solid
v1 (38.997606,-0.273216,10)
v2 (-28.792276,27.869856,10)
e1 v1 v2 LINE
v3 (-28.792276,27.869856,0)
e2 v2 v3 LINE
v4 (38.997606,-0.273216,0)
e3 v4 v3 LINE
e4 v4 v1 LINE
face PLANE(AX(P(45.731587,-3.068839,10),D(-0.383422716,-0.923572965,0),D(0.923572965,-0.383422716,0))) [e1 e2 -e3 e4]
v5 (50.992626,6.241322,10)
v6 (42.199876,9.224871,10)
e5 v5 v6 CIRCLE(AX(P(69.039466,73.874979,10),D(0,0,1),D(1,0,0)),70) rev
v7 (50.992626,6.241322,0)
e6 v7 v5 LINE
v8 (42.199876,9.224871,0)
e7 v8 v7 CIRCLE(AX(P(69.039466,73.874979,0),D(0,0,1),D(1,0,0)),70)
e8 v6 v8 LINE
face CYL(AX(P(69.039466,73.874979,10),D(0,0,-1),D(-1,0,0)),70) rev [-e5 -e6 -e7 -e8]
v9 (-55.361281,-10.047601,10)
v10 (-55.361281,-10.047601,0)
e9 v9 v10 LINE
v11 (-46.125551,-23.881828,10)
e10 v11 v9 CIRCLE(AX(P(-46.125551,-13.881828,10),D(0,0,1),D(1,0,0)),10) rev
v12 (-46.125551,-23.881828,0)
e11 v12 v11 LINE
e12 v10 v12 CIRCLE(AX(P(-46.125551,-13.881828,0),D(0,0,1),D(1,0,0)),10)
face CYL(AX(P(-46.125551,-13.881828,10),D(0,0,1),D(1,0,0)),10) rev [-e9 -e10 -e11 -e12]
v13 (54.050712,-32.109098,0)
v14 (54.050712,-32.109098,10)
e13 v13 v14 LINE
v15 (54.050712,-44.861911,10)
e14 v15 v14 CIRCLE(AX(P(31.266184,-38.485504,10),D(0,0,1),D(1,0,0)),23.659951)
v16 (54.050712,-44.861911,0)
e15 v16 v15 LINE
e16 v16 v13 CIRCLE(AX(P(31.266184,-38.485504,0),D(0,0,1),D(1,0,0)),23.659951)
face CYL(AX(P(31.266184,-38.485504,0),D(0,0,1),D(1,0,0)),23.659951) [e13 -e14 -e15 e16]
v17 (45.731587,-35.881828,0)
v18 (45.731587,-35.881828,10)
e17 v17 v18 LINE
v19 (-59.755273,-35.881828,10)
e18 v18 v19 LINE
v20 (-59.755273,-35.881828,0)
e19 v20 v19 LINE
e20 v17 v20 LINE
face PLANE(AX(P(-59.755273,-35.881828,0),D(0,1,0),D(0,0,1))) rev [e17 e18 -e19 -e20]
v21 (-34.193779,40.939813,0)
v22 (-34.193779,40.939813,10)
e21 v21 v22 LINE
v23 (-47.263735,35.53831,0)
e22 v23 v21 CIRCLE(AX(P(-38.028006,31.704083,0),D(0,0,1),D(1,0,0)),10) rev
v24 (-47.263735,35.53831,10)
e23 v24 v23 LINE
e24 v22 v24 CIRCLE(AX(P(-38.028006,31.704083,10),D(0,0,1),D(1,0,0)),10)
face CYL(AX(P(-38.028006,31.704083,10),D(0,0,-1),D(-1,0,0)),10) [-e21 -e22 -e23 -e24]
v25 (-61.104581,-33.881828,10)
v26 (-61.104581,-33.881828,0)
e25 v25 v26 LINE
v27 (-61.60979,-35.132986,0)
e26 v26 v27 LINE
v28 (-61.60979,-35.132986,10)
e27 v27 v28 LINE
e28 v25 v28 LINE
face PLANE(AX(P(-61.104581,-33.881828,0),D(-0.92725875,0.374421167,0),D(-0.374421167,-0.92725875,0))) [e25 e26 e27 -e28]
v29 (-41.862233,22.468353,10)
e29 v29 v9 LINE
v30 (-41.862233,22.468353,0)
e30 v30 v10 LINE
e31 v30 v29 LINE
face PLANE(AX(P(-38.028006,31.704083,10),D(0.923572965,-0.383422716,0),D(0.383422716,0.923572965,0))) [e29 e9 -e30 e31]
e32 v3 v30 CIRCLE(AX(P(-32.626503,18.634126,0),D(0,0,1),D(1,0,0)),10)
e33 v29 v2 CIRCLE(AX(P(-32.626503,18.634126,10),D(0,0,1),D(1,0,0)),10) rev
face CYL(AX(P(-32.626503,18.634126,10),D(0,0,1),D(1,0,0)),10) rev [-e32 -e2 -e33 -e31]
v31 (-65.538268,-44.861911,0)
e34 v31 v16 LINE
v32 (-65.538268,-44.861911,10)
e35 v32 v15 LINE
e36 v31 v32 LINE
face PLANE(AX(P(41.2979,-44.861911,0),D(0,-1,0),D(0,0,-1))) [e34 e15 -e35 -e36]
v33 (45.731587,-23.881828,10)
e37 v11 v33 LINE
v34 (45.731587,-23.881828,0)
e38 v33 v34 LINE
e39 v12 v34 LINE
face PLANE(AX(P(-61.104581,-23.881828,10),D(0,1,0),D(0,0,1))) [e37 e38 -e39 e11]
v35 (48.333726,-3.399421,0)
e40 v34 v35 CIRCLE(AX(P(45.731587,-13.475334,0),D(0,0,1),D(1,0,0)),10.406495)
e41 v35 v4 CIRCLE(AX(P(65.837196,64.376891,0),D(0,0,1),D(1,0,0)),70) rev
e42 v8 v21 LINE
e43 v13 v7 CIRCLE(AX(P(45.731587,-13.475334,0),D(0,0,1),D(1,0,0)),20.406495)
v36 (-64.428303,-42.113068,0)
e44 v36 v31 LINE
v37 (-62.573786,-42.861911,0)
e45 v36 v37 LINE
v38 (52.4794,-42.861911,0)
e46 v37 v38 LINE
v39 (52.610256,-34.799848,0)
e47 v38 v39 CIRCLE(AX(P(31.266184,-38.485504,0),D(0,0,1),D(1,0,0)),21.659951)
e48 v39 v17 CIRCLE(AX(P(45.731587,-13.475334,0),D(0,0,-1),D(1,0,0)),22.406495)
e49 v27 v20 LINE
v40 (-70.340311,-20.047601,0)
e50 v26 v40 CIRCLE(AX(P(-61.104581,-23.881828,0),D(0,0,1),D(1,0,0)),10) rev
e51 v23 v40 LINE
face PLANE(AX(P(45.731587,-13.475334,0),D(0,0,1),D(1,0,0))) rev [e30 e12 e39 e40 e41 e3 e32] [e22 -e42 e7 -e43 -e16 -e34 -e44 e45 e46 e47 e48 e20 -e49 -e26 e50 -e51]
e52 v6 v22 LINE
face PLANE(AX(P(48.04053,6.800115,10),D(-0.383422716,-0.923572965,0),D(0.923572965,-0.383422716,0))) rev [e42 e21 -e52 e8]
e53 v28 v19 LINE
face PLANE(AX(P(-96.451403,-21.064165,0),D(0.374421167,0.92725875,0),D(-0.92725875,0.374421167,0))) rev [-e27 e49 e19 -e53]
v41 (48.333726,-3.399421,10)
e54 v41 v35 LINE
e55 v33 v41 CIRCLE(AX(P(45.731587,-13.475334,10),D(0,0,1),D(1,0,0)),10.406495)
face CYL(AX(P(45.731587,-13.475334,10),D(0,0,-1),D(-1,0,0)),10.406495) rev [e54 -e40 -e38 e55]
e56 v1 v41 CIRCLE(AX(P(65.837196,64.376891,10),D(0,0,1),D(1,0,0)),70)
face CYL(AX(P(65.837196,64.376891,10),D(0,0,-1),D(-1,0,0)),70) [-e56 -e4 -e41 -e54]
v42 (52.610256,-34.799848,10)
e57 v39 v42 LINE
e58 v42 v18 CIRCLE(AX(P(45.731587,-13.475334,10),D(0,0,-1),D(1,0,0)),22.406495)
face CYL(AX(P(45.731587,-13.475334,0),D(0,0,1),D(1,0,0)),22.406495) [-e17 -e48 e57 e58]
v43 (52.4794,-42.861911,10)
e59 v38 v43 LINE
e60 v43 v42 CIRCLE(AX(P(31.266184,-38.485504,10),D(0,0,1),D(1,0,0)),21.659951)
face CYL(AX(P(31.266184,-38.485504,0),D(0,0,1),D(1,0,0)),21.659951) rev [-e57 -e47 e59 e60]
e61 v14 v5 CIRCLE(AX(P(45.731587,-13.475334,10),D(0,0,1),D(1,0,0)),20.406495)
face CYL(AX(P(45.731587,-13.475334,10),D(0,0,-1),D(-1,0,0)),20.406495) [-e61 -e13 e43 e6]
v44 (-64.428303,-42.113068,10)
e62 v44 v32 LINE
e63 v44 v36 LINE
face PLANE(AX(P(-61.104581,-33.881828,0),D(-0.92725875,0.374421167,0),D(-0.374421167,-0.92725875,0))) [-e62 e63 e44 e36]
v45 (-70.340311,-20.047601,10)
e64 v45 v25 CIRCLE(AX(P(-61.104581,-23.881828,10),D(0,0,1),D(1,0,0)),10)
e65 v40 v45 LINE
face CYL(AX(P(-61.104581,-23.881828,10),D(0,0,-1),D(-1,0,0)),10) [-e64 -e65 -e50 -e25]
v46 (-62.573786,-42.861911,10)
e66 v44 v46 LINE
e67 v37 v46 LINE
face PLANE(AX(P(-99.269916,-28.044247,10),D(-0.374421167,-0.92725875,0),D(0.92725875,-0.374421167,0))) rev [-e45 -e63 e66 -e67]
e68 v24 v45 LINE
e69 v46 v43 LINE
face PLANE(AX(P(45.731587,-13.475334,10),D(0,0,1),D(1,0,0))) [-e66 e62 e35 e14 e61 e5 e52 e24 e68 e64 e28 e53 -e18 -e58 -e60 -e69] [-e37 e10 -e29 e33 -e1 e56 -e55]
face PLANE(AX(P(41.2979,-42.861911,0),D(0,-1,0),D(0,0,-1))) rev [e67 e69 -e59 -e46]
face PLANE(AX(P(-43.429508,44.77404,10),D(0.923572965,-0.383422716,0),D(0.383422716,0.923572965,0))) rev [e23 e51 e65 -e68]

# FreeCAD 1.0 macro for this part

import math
import FreeCAD as App
import Part
import Sketcher
from FreeCAD import Vector
Q = App.Units.Quantity


def edges_at(feature, points):
    """Names of the edges that pass closest to the given points."""
    edges = feature.Shape.Edges
    near = lambda p: min(range(len(edges)), key=lambda i: edges[i].distToShape(Part.Vertex(*p))[0])
    return sorted({f"Edge{near(p) + 1}" for p in points})

doc = App.newDocument("Part")
body = doc.addObject("PartDesign::Body", "Body")

# Sketch on XY plane
sketch1 = body.newObject("Sketcher::SketchObject", "Sketch")
sketch1.AttachmentSupport = (doc.getObject("XY_Plane"), [""])
sketch1.MapMode = "FlatFace"
sketch1.addGeometry(Part.LineSegment(Vector(-76, -34, 0), Vector(46, -34, 0)), False)
sketch1.addGeometry(Part.ArcOfCircle(Part.Circle(Vector(46, -13, 0), Vector(0, 0, 1), 20), math.radians(-90), math.radians(84)), False)
sketch1.addGeometry(Part.LineSegment(Vector(48, 7, 0), Vector(-43, 45, 0)), False)
sketch1.addGeometry(Part.LineSegment(Vector(-43, 45, 0), Vector(-76, -34, 0)), False)
sketch1.addGeometry(Part.LineSegment(Vector(46, -24, 0), Vector(-61, -24, 0)), False)
sketch1.addGeometry(Part.LineSegment(Vector(-61, -24, 0), Vector(-38, 32, 0)), False)
sketch1.addGeometry(Part.LineSegment(Vector(-38, 32, 0), Vector(46, -3, 0)), False)
sketch1.addGeometry(Part.ArcOfCircle(Part.Circle(Vector(46, -13, 0), Vector(0, 0, 1), 10), math.radians(-90), math.radians(90)), False)
sketch1.addConstraint(Sketcher.Constraint("Tangent", 0, 2, 1, 1))
sketch1.addConstraint(Sketcher.Constraint("Coincident", 1, 2, 2, 1))
sketch1.addConstraint(Sketcher.Constraint("Coincident", 2, 2, 3, 1))
sketch1.addConstraint(Sketcher.Constraint("Coincident", 3, 2, 0, 1))
sketch1.addConstraint(Sketcher.Constraint("Coincident", 4, 2, 5, 1))
sketch1.addConstraint(Sketcher.Constraint("Coincident", 5, 2, 6, 1))
sketch1.addConstraint(Sketcher.Constraint("Coincident", 6, 2, 7, 2))
sketch1.addConstraint(Sketcher.Constraint("Tangent", 7, 1, 4, 1))
sketch1.addConstraint(Sketcher.Constraint("Horizontal", 0))
sketch1.addConstraint(Sketcher.Constraint("Horizontal", 4))
sketch1.addConstraint(Sketcher.Constraint("Coincident", 7, 3, 1, 3))
sketch1.addConstraint(Sketcher.Constraint("Perpendicular", 2, 3))
sketch1.addConstraint(Sketcher.Constraint("Parallel", 3, 5))
sketch1.addConstraint(Sketcher.Constraint("Perpendicular", 5, 6))
sketch1.addConstraint(Sketcher.Constraint("Vertical", 0, 2, 6, 2))
sketch1.addConstraint(Sketcher.Constraint("DistanceY", 3, 2, 4, 2, Q("10 mm")))
sketch1.addConstraint(Sketcher.Constraint("Radius", 1, Q("20.406495 mm")))
sketch1.addConstraint(Sketcher.Constraint("Distance", 2, Q("99.039319 mm")))
sketch1.addConstraint(Sketcher.Constraint("Distance", 3, Q("85.164758 mm")))
sketch1.addConstraint(Sketcher.Constraint("Distance", 5, Q("60.185728 mm")))
sketch1.addConstraint(Sketcher.Constraint("DistanceX", 0, 1, 0, 2, Q("121.815198 mm")))
sketch1.addConstraint(Sketcher.Constraint("DistanceY", 0, 2, -1, 1, Q("33.881828 mm")))
sketch1.addConstraint(Sketcher.Constraint("DistanceX", -1, 1, 1, 2, Q("48.04053 mm")))
pad1 = body.newObject("PartDesign::Pad", "Pad")
pad1.Profile = sketch1
pad1.Length = 10
doc.recompute()

fillet = body.newObject("PartDesign::Fillet", "Fillet")
fillet.Base = (pad1, edges_at(pad1, [(-76.084, -33.882, 5)]))
fillet.Radius = 10
doc.recompute()

fillet2 = body.newObject("PartDesign::Fillet", "Fillet001")
fillet2.Base = (fillet, edges_at(fillet, [(-61.105, -23.882, 5)]))
fillet2.Radius = 10
doc.recompute()

fillet3 = body.newObject("PartDesign::Fillet", "Fillet002")
fillet3.Base = (fillet2, edges_at(fillet2, [(-38.028, 31.704, 5), (-43.43, 44.774, 5)]))
fillet3.Radius = 10
doc.recompute()

fillet4 = body.newObject("PartDesign::Fillet", "Fillet003")
fillet4.Base = (fillet3, edges_at(fillet3, [(48.041, 6.8, 5)]))
fillet4.Radius = 70
doc.recompute()

fillet5 = body.newObject("PartDesign::Fillet", "Fillet004")
fillet5.Base = (fillet4, edges_at(fillet4, [(45.732, -3.069, 5)]))
fillet5.Radius = 70

# Sketch on XY plane
sketch2 = body.newObject("Sketcher::SketchObject", "Sketch001")
sketch2.AttachmentSupport = (doc.getObject("XY_Plane"), [""])
sketch2.MapMode = "FlatFace"
sketch2.addGeometry(Part.LineSegment(Vector(46, -34, 0), Vector(-61, -34, 0)), False)
sketch2.addGeometry(Part.LineSegment(Vector(-61, -34, 0), Vector(-66, -45, 0)), False)
sketch2.addGeometry(Part.LineSegment(Vector(-66, -45, 0), Vector(54, -45, 0)), False)
sketch2.addGeometry(Part.ArcOfCircle(Part.Circle(Vector(31, -38, 0), Vector(0, 0, 1), 24), math.radians(-16), math.radians(16)), False)
sketch2.addGeometry(Part.ArcOfCircle(Part.Circle(Vector(46, -13, 0), Vector(0, 0, 1), 20), math.radians(-90), math.radians(-66)), False)
sketch2.addGeometry(Part.LineSegment(Vector(-60, -36, 0), Vector(46, -36, 0)), False)
sketch2.addGeometry(Part.ArcOfCircle(Part.Circle(Vector(46, -13, 0), Vector(0, 0, 1), 22), math.radians(-90), math.radians(-72.12)), False)
sketch2.addGeometry(Part.ArcOfCircle(Part.Circle(Vector(31, -38, 0), Vector(0, 0, 1), 22), math.radians(-12), math.radians(10)), False)
sketch2.addGeometry(Part.LineSegment(Vector(52, -43, 0), Vector(-63, -43, 0)), False)
sketch2.addGeometry(Part.LineSegment(Vector(-63, -43, 0), Vector(-60, -36, 0)), False)
sketch2.addConstraint(Sketcher.Constraint("Coincident", 0, 2, 1, 1))
sketch2.addConstraint(Sketcher.Constraint("Coincident", 1, 2, 2, 1))
sketch2.addConstraint(Sketcher.Constraint("Coincident", 2, 2, 3, 1))
sketch2.addConstraint(Sketcher.Constraint("Coincident", 3, 2, 4, 2))
sketch2.addConstraint(Sketcher.Constraint("Tangent", 4, 1, 0, 1))
sketch2.addConstraint(Sketcher.Constraint("Tangent", 5, 2, 6, 1))
sketch2.addConstraint(Sketcher.Constraint("Coincident", 6, 2, 7, 2))
sketch2.addConstraint(Sketcher.Constraint("Coincident", 7, 1, 8, 1))
sketch2.addConstraint(Sketcher.Constraint("Coincident", 8, 2, 9, 1))
sketch2.addConstraint(Sketcher.Constraint("Coincident", 9, 2, 5, 1))
sketch2.addConstraint(Sketcher.Constraint("Horizontal", 0))
sketch2.addConstraint(Sketcher.Constraint("Horizontal", 2))
sketch2.addConstraint(Sketcher.Constraint("Horizontal", 5))
sketch2.addConstraint(Sketcher.Constraint("Horizontal", 8))
sketch2.addConstraint(Sketcher.Constraint("Coincident", 6, 3, 4, 3))
sketch2.addConstraint(Sketcher.Constraint("Coincident", 7, 3, 3, 3))
sketch2.addConstraint(Sketcher.Constraint("Parallel", 1, 9))
sketch2.addConstraint(Sketcher.Constraint("Vertical", 2, 2, 3, 2))
sketch2.addConstraint(Sketcher.Constraint("DistanceY", 5, 2, 4, 1, Q("2 mm")))
sketch2.addConstraint(Sketcher.Constraint("DistanceY", 2, 2, 7, 1, Q("2 mm")))
sketch2.addConstraint(Sketcher.Constraint("Radius", 3, Q("23.659951 mm")))
sketch2.addConstraint(Sketcher.Constraint("Radius", 7, Q("21.659951 mm")))
sketch2.addConstraint(Sketcher.Constraint("Radius", 4, Q("20.406495 mm")))
sketch2.addConstraint(Sketcher.Constraint("DistanceX", 2, 1, 2, 2, Q("119.58898 mm")))
sketch2.addConstraint(Sketcher.Constraint("DistanceX", 5, 1, 5, 2, Q("105.48686 mm")))
sketch2.addConstraint(Sketcher.Constraint("DistanceY", 3, 2, -1, 1, Q("32.109098 mm")))
sketch2.addConstraint(Sketcher.Constraint("DistanceX", -1, 1, 7, 1, Q("52.4794 mm")))
sketch2.addConstraint(Sketcher.Constraint("DistanceX", 0, 2, 0, 1, Q("106.836168 mm")))
sketch2.addConstraint(Sketcher.Constraint("DistanceX", 8, 2, 8, 1, Q("115.053186 mm")))
sketch2.addConstraint(Sketcher.Constraint("DistanceX", 0, 2, -1, 1, Q("61.104581 mm")))
pad2 = body.newObject("PartDesign::Pad", "Pad001")
pad2.Profile = sketch2
pad2.Length = 10

# Sketch on an angled plane
sketch3 = body.newObject("Sketcher::SketchObject", "Sketch002")
sketch3.Placement = App.Placement(Vector(-38.920465, 15.715836, 0), App.Rotation(Vector(0, 0, -1), Vector(0.374421167, 0.92725875, 0), Vector(0.92725875, -0.374421167, 0), "ZXY"))
sketch3.addGeometry(Part.LineSegment(Vector(-10, -56, 0), Vector(-10, -63, 0)), False)
sketch3.addGeometry(Part.LineSegment(Vector(-10, -63, 0), Vector(0, -63, 0)), False)
sketch3.addGeometry(Part.LineSegment(Vector(0, -63, 0), Vector(0, -56, 0)), False)
sketch3.addGeometry(Part.LineSegment(Vector(0, -56, 0), Vector(-10, -56, 0)), False)
sketch3.addConstraint(Sketcher.Constraint("Coincident", 0, 2, 1, 1))
sketch3.addConstraint(Sketcher.Constraint("Coincident", 1, 2, 2, 1))
sketch3.addConstraint(Sketcher.Constraint("Coincident", 2, 2, 3, 1))
sketch3.addConstraint(Sketcher.Constraint("Coincident", 3, 2, 0, 1))
sketch3.addConstraint(Sketcher.Constraint("Vertical", 0))
sketch3.addConstraint(Sketcher.Constraint("Horizontal", 1))
sketch3.addConstraint(Sketcher.Constraint("Vertical", 2))
sketch3.addConstraint(Sketcher.Constraint("Horizontal", 3))
sketch3.addConstraint(Sketcher.Constraint("PointOnObject", 1, 2, -2))
sketch3.addConstraint(Sketcher.Constraint("DistanceX", 1, 1, 1, 2, Q("10 mm")))
sketch3.addConstraint(Sketcher.Constraint("DistanceY", 0, 2, 0, 1, Q("7.527653 mm")))
sketch3.addConstraint(Sketcher.Constraint("DistanceY", 0, 2, -1, 1, Q("63.173031 mm")))
pocket1 = body.newObject("PartDesign::Pocket", "Pocket")
pocket1.Profile = sketch3
pocket1.Type = "UpToFirst"

doc.recompute()
